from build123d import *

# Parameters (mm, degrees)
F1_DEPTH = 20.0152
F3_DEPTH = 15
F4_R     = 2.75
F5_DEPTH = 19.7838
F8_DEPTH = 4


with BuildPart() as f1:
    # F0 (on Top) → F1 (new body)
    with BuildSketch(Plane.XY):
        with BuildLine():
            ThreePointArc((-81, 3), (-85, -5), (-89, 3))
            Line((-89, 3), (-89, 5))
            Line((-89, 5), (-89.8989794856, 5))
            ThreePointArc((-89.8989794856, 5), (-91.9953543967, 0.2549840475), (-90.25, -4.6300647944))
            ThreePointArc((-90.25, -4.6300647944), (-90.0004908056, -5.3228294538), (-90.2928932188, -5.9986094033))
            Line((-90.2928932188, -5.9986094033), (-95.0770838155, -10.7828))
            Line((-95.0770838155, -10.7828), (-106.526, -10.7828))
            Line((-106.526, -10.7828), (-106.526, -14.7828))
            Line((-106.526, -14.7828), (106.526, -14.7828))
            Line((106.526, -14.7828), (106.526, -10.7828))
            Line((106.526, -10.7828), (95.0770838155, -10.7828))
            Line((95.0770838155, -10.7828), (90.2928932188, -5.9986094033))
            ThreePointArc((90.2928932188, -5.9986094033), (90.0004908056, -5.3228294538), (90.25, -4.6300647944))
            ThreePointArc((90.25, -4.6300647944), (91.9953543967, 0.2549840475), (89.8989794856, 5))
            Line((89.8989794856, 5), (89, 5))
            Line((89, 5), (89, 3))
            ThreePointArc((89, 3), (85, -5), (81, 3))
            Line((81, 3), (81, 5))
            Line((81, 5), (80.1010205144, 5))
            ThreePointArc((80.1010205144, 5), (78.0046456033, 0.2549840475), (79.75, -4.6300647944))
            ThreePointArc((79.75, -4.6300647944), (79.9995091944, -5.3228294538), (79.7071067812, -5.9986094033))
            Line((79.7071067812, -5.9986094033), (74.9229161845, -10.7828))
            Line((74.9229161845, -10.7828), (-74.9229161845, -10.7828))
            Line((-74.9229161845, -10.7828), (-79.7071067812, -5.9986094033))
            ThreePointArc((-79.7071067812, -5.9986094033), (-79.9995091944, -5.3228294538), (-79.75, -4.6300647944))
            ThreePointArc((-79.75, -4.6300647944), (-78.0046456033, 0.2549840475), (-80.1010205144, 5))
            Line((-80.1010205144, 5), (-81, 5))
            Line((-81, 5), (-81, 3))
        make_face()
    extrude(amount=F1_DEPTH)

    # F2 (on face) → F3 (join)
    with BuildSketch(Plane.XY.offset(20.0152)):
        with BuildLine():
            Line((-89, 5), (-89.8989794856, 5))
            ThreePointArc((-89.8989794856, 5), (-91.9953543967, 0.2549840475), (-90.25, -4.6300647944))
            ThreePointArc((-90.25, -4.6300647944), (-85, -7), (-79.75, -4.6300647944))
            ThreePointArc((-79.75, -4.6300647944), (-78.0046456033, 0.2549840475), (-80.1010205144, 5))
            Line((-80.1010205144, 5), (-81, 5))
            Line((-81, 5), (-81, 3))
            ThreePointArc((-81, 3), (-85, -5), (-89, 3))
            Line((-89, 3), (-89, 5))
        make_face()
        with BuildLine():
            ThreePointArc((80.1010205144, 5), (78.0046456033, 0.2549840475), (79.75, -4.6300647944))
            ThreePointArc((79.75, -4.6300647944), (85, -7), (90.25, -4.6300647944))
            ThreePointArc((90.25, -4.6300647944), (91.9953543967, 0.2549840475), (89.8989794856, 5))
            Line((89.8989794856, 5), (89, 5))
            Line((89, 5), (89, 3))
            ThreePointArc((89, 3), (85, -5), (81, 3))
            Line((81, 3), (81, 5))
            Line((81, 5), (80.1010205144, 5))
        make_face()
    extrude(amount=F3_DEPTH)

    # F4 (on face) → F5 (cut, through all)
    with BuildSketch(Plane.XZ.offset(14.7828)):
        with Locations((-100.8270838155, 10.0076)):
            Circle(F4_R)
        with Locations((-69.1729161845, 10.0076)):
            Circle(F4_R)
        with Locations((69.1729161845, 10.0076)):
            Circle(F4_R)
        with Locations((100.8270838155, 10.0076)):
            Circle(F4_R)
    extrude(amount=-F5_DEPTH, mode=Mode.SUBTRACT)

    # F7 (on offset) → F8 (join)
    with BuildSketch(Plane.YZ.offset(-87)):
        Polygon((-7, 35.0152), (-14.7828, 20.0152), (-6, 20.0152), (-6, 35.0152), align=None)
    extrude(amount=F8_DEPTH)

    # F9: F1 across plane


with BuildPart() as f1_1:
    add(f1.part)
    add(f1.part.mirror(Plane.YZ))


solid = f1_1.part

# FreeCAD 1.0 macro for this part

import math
import FreeCAD as App
import Part
import Sketcher

doc = App.newDocument("Part")
params = doc.addObject("Spreadsheet::Sheet", "Params")
for row, (alias, value) in enumerate([
    ("sketch1_radius", "5 mm"),
    ("sketch1_radius2", "7 mm"),
    ("sketch1_radius3", "1 mm"),
    ("sketch1_height", "2 mm"),
    ("sketch1_height2", "4 mm"),
    ("pad1_length", "20.0152 mm"),
    ("sketch2_radius", "7 mm"),
    ("sketch2_radius2", "5 mm"),
    ("sketch2_height", "2 mm"),
    ("pad2_length", "15 mm"),
    ("sketch3_diameter", "5.5 mm"),
    ("sketch4_width", "1 mm"),
    ("sketch4_height", "15 mm"),
    ("pad3_length", "4 mm"),
], start=1):
    params.set(f"A{row}", alias)
    params.set(f"B{row}", "=" + value)
    params.setAlias(f"B{row}", alias)

body = doc.addObject("PartDesign::Body", "Body")

# Sketch on XY plane
sketch1 = doc.addObject("Sketcher::SketchObject", "Sketch")
body.addObject(sketch1)
sketch1.AttachmentSupport = (doc.XY_Plane, [""])
sketch1.MapMode = "FlatFace"
sketch1.addGeometry(Part.ArcOfCircle(Part.Circle(App.Vector(-85, 0, 0), App.Vector(0, 0, 1), 5), math.radians(143), math.radians(397)), False)
sketch1.addGeometry(Part.LineSegment(App.Vector(-89, 3, 0), App.Vector(-89, 5, 0)), False)
sketch1.addGeometry(Part.LineSegment(App.Vector(-89, 5, 0), App.Vector(-89.9, 5, 0)), False)
sketch1.addGeometry(Part.ArcOfCircle(Part.Circle(App.Vector(-85, 0, 0), App.Vector(0, 0, 1), 7), math.radians(134), math.radians(221)), False)
sketch1.addGeometry(Part.ArcOfCircle(Part.Circle(App.Vector(-91, -5.3, 0), App.Vector(0, 0, 1), 1), math.radians(-45), math.radians(41)), False)
sketch1.addGeometry(Part.LineSegment(App.Vector(-90.3, -6, 0), App.Vector(-95.1, -10.8, 0)), False)
sketch1.addGeometry(Part.LineSegment(App.Vector(-95.1, -10.8, 0), App.Vector(-106.5, -10.8, 0)), False)
sketch1.addGeometry(Part.LineSegment(App.Vector(-106.5, -10.8, 0), App.Vector(-106.5, -14.8, 0)), False)
sketch1.addGeometry(Part.LineSegment(App.Vector(-106.5, -14.8, 0), App.Vector(106.5, -14.8, 0)), False)
sketch1.addGeometry(Part.LineSegment(App.Vector(106.5, -14.8, 0), App.Vector(106.5, -10.8, 0)), False)
sketch1.addGeometry(Part.LineSegment(App.Vector(106.5, -10.8, 0), App.Vector(95.1, -10.8, 0)), False)
sketch1.addGeometry(Part.LineSegment(App.Vector(95.1, -10.8, 0), App.Vector(90.3, -6, 0)), False)
sketch1.addGeometry(Part.ArcOfCircle(Part.Circle(App.Vector(91, -5.3, 0), App.Vector(0, 0, 1), 1), math.radians(139), math.radians(225)), False)
sketch1.addGeometry(Part.ArcOfCircle(Part.Circle(App.Vector(85, 0, 0), App.Vector(0, 0, 1), 7), math.radians(-41), math.radians(46)), False)
sketch1.addGeometry(Part.LineSegment(App.Vector(89.9, 5, 0), App.Vector(89, 5, 0)), False)
sketch1.addGeometry(Part.LineSegment(App.Vector(89, 5, 0), App.Vector(89, 3, 0)), False)
sketch1.addGeometry(Part.ArcOfCircle(Part.Circle(App.Vector(85, 0, 0), App.Vector(0, 0, 1), 5), math.radians(143), math.radians(397)), False)
sketch1.addGeometry(Part.LineSegment(App.Vector(81, 3, 0), App.Vector(81, 5, 0)), False)
sketch1.addGeometry(Part.LineSegment(App.Vector(81, 5, 0), App.Vector(80.1, 5, 0)), False)
sketch1.addGeometry(Part.ArcOfCircle(Part.Circle(App.Vector(85, 0, 0), App.Vector(0, 0, 1), 7), math.radians(134), math.radians(221)), False)
sketch1.addGeometry(Part.ArcOfCircle(Part.Circle(App.Vector(79, -5.3, 0), App.Vector(0, 0, 1), 1), math.radians(-45), math.radians(41)), False)
sketch1.addGeometry(Part.LineSegment(App.Vector(79.7, -6, 0), App.Vector(74.9, -10.8, 0)), False)
sketch1.addGeometry(Part.LineSegment(App.Vector(74.9, -10.8, 0), App.Vector(-74.9, -10.8, 0)), False)
sketch1.addGeometry(Part.LineSegment(App.Vector(-74.9, -10.8, 0), App.Vector(-79.7, -6, 0)), False)
sketch1.addGeometry(Part.ArcOfCircle(Part.Circle(App.Vector(-79, -5.3, 0), App.Vector(0, 0, 1), 1), math.radians(139), math.radians(225)), False)
sketch1.addGeometry(Part.ArcOfCircle(Part.Circle(App.Vector(-85, 0, 0), App.Vector(0, 0, 1), 7), math.radians(-41), math.radians(46)), False)
sketch1.addGeometry(Part.LineSegment(App.Vector(-80.1, 5, 0), App.Vector(-81, 5, 0)), False)
sketch1.addGeometry(Part.LineSegment(App.Vector(-81, 5, 0), App.Vector(-81, 3, 0)), False)
sketch1.addConstraint(Sketcher.Constraint("Coincident", 0, 1, 1, 1))
sketch1.addConstraint(Sketcher.Constraint("Coincident", 1, 2, 2, 1))
sketch1.addConstraint(Sketcher.Constraint("Coincident", 2, 2, 3, 1))
sketch1.addConstraint(Sketcher.Constraint("Tangent", 3, 2, 4, 2))
sketch1.addConstraint(Sketcher.Constraint("Tangent", 4, 1, 5, 1))
sketch1.addConstraint(Sketcher.Constraint("Coincident", 5, 2, 6, 1))
sketch1.addConstraint(Sketcher.Constraint("Coincident", 6, 2, 7, 1))
sketch1.addConstraint(Sketcher.Constraint("Coincident", 7, 2, 8, 1))
sketch1.addConstraint(Sketcher.Constraint("Coincident", 8, 2, 9, 1))
sketch1.addConstraint(Sketcher.Constraint("Coincident", 9, 2, 10, 1))
sketch1.addConstraint(Sketcher.Constraint("Coincident", 10, 2, 11, 1))
sketch1.addConstraint(Sketcher.Constraint("Tangent", 11, 2, 12, 2))
sketch1.addConstraint(Sketcher.Constraint("Tangent", 12, 1, 13, 1))
sketch1.addConstraint(Sketcher.Constraint("Coincident", 13, 2, 14, 1))
sketch1.addConstraint(Sketcher.Constraint("Coincident", 14, 2, 15, 1))
sketch1.addConstraint(Sketcher.Constraint("Coincident", 15, 2, 16, 2))
sketch1.addConstraint(Sketcher.Constraint("Coincident", 16, 1, 17, 1))
sketch1.addConstraint(Sketcher.Constraint("Coincident", 17, 2, 18, 1))
sketch1.addConstraint(Sketcher.Constraint("Coincident", 18, 2, 19, 1))
sketch1.addConstraint(Sketcher.Constraint("Tangent", 19, 2, 20, 2))
sketch1.addConstraint(Sketcher.Constraint("Tangent", 20, 1, 21, 1))
sketch1.addConstraint(Sketcher.Constraint("Coincident", 21, 2, 22, 1))
sketch1.addConstraint(Sketcher.Constraint("Coincident", 22, 2, 23, 1))
sketch1.addConstraint(Sketcher.Constraint("Tangent", 23, 2, 24, 2))
sketch1.addConstraint(Sketcher.Constraint("Tangent", 24, 1, 25, 1))
sketch1.addConstraint(Sketcher.Constraint("Coincident", 25, 2, 26, 1))
sketch1.addConstraint(Sketcher.Constraint("Coincident", 26, 2, 27, 1))
sketch1.addConstraint(Sketcher.Constraint("Coincident", 27, 2, 0, 2))
sketch1.addConstraint(Sketcher.Constraint("Vertical", 1))
sketch1.addConstraint(Sketcher.Constraint("Horizontal", 2))
sketch1.addConstraint(Sketcher.Constraint("Horizontal", 6))
sketch1.addConstraint(Sketcher.Constraint("Vertical", 7))
sketch1.addConstraint(Sketcher.Constraint("Horizontal", 8))
sketch1.addConstraint(Sketcher.Constraint("Vertical", 9))
sketch1.addConstraint(Sketcher.Constraint("Horizontal", 10))
sketch1.addConstraint(Sketcher.Constraint("Horizontal", 14))
sketch1.addConstraint(Sketcher.Constraint("Vertical", 15))
sketch1.addConstraint(Sketcher.Constraint("Vertical", 17))
sketch1.addConstraint(Sketcher.Constraint("Horizontal", 18))
sketch1.addConstraint(Sketcher.Constraint("Horizontal", 22))
sketch1.addConstraint(Sketcher.Constraint("Horizontal", 26))
sketch1.addConstraint(Sketcher.Constraint("Vertical", 27))
sketch1.addConstraint(Sketcher.Constraint("Coincident", 3, 3, 0, 3))
sketch1.addConstraint(Sketcher.Constraint("Coincident", 16, 3, 13, 3))
sketch1.addConstraint(Sketcher.Constraint("Coincident", 19, 3, 13, 3))
sketch1.addConstraint(Sketcher.Constraint("Coincident", 25, 3, 0, 3))
sketch1.addConstraint(Sketcher.Constraint("Equal", 4, 12))
sketch1.addConstraint(Sketcher.Constraint("Equal", 3, 13))
sketch1.addConstraint(Sketcher.Constraint("Equal", 0, 16))
sketch1.addConstraint(Sketcher.Constraint("Equal", 13, 19))
sketch1.addConstraint(Sketcher.Constraint("Equal", 12, 20))
sketch1.addConstraint(Sketcher.Constraint("Equal", 20, 24))
sketch1.addConstraint(Sketcher.Constraint("Equal", 19, 25))
sketch1.addConstraint(Sketcher.Constraint("Symmetric", 0, 3, 13, 3, -1, 1))
sketch1.addConstraint(Sketcher.Constraint("Symmetric", 4, 3, 12, 3, -2))
sketch1.addConstraint(Sketcher.Constraint("Symmetric", 6, 2, 9, 2, -2))
sketch1.addConstraint(Sketcher.Constraint("Symmetric", 1, 2, 14, 2, -2))
sketch1.addConstraint(Sketcher.Constraint("Symmetric", 20, 1, 23, 2, -2))
sketch1.addConstraint(Sketcher.Constraint("Symmetric", 17, 2, 26, 2, -2))
sketch1.addConstraint(Sketcher.Constraint("Perpendicular", 5, 11))
sketch1.addConstraint(Sketcher.Constraint("Perpendicular", 11, 21))
sketch1.addConstraint(Sketcher.Constraint("Perpendicular", 21, 23))
sketch1.addConstraint(Sketcher.Constraint("Horizontal", 12, 3, 20, 3))
sketch1.addConstraint(Sketcher.Constraint("Horizontal", 15, 2, 16, 1))
sketch1.addConstraint(Sketcher.Constraint("Horizontal", 14, 2, 17, 2))
sketch1.addConstraint(Sketcher.Constraint("Horizontal", 10, 2, 21, 2))
sketch1.addConstraint(Sketcher.Constraint("Radius", 0, 5.0))
sketch1.addConstraint(Sketcher.Constraint("Radius", 3, 7.0))
sketch1.addConstraint(Sketcher.Constraint("Radius", 4, 1.0))
sketch1.addConstraint(Sketcher.Constraint("DistanceY", 1, 1, 1, 2, 2.0))
sketch1.addConstraint(Sketcher.Constraint("DistanceY", 7, 2, 7, 1, 4.0))
sketch1.addConstraint(Sketcher.Constraint("DistanceX", 0, 3, -1, 1, 85.0))
sketch1.addConstraint(Sketcher.Constraint("DistanceX", 4, 3, -1, 1, 91.0))
sketch1.addConstraint(Sketcher.Constraint("DistanceX", 0, 1, -1, 1, 89.0))
sketch1.addConstraint(Sketcher.Constraint("DistanceX", 8, 1, 8, 2, 213.052))
sketch1.addConstraint(Sketcher.Constraint("DistanceY", 5, 2, -1, 1, 10.7828))
sketch1.setExpression("Constraints[66]", "Params.sketch1_radius")
sketch1.setExpression("Constraints[67]", "Params.sketch1_radius2")
sketch1.setExpression("Constraints[68]", "Params.sketch1_radius3")
sketch1.setExpression("Constraints[69]", "Params.sketch1_height")
sketch1.setExpression("Constraints[70]", "Params.sketch1_height2")
pad1 = doc.addObject("PartDesign::Pad", "Pad")
body.addObject(pad1)
pad1.Profile = sketch1
pad1.setExpression("Length", "Params.pad1_length")

# Sketch on XY plane
sketch2 = doc.addObject("Sketcher::SketchObject", "Sketch001")
body.addObject(sketch2)
sketch2.AttachmentSupport = (doc.XY_Plane, [""])
sketch2.MapMode = "FlatFace"
sketch2.AttachmentOffset = App.Placement(App.Vector(0, 0, 20.0152), App.Rotation())
sketch2.addGeometry(Part.LineSegment(App.Vector(-89, 5, 0), App.Vector(-89.9, 5, 0)), False)
sketch2.addGeometry(Part.ArcOfCircle(Part.Circle(App.Vector(-85, 0, 0), App.Vector(0, 0, 1), 7), math.radians(134), math.radians(221)), False)
sketch2.addGeometry(Part.ArcOfCircle(Part.Circle(App.Vector(-85, 0, 0), App.Vector(0, 0, 1), 7), math.radians(-139), math.radians(-41)), False)
sketch2.addGeometry(Part.ArcOfCircle(Part.Circle(App.Vector(-85, 0, 0), App.Vector(0, 0, 1), 7), math.radians(-41), math.radians(46)), False)
sketch2.addGeometry(Part.LineSegment(App.Vector(-80.1, 5, 0), App.Vector(-81, 5, 0)), False)
sketch2.addGeometry(Part.LineSegment(App.Vector(-81, 5, 0), App.Vector(-81, 3, 0)), False)
sketch2.addGeometry(Part.ArcOfCircle(Part.Circle(App.Vector(-85, 0, 0), App.Vector(0, 0, 1), 5), math.radians(143), math.radians(397)), False)
sketch2.addGeometry(Part.LineSegment(App.Vector(-89, 3, 0), App.Vector(-89, 5, 0)), False)
sketch2.addGeometry(Part.ArcOfCircle(Part.Circle(App.Vector(85, 0, 0), App.Vector(0, 0, 1), 7), math.radians(134), math.radians(221)), False)
sketch2.addGeometry(Part.ArcOfCircle(Part.Circle(App.Vector(85, 0, 0), App.Vector(0, 0, 1), 7), math.radians(-139), math.radians(-41)), False)
sketch2.addGeometry(Part.ArcOfCircle(Part.Circle(App.Vector(85, 0, 0), App.Vector(0, 0, 1), 7), math.radians(-41), math.radians(46)), False)
sketch2.addGeometry(Part.LineSegment(App.Vector(89.9, 5, 0), App.Vector(89, 5, 0)), False)
sketch2.addGeometry(Part.LineSegment(App.Vector(89, 5, 0), App.Vector(89, 3, 0)), False)
sketch2.addGeometry(Part.ArcOfCircle(Part.Circle(App.Vector(85, 0, 0), App.Vector(0, 0, 1), 5), math.radians(143), math.radians(397)), False)
sketch2.addGeometry(Part.LineSegment(App.Vector(81, 3, 0), App.Vector(81, 5, 0)), False)
sketch2.addGeometry(Part.LineSegment(App.Vector(81, 5, 0), App.Vector(80.1, 5, 0)), False)
sketch2.addConstraint(Sketcher.Constraint("Coincident", 0, 2, 1, 1))
sketch2.addConstraint(Sketcher.Constraint("Tangent", 1, 2, 2, 1))
sketch2.addConstraint(Sketcher.Constraint("Tangent", 2, 2, 3, 1))
sketch2.addConstraint(Sketcher.Constraint("Coincident", 3, 2, 4, 1))
sketch2.addConstraint(Sketcher.Constraint("Coincident", 4, 2, 5, 1))
sketch2.addConstraint(Sketcher.Constraint("Coincident", 5, 2, 6, 2))
sketch2.addConstraint(Sketcher.Constraint("Coincident", 6, 1, 7, 1))
sketch2.addConstraint(Sketcher.Constraint("Coincident", 7, 2, 0, 1))
sketch2.addConstraint(Sketcher.Constraint("Tangent", 8, 2, 9, 1))
sketch2.addConstraint(Sketcher.Constraint("Tangent", 9, 2, 10, 1))
sketch2.addConstraint(Sketcher.Constraint("Coincident", 10, 2, 11, 1))
sketch2.addConstraint(Sketcher.Constraint("Coincident", 11, 2, 12, 1))
sketch2.addConstraint(Sketcher.Constraint("Coincident", 12, 2, 13, 2))
sketch2.addConstraint(Sketcher.Constraint("Coincident", 13, 1, 14, 1))
sketch2.addConstraint(Sketcher.Constraint("Coincident", 14, 2, 15, 1))
sketch2.addConstraint(Sketcher.Constraint("Coincident", 15, 2, 8, 1))
sketch2.addConstraint(Sketcher.Constraint("Horizontal", 0))
sketch2.addConstraint(Sketcher.Constraint("Horizontal", 4))
sketch2.addConstraint(Sketcher.Constraint("Vertical", 5))
sketch2.addConstraint(Sketcher.Constraint("Vertical", 7))
sketch2.addConstraint(Sketcher.Constraint("Horizontal", 11))
sketch2.addConstraint(Sketcher.Constraint("Vertical", 12))
sketch2.addConstraint(Sketcher.Constraint("Vertical", 14))
sketch2.addConstraint(Sketcher.Constraint("Horizontal", 15))
sketch2.addConstraint(Sketcher.Constraint("Coincident", 3, 3, 1, 3))
sketch2.addConstraint(Sketcher.Constraint("Coincident", 6, 3, 1, 3))
sketch2.addConstraint(Sketcher.Constraint("Coincident", 10, 3, 8, 3))
sketch2.addConstraint(Sketcher.Constraint("Coincident", 13, 3, 8, 3))
sketch2.addConstraint(Sketcher.Constraint("Equal", 3, 8))
sketch2.addConstraint(Sketcher.Constraint("Equal", 6, 13))
sketch2.addConstraint(Sketcher.Constraint("Symmetric", 1, 3, 8, 3, -1, 1))
sketch2.addConstraint(Sketcher.Constraint("Symmetric", 2, 2, 8, 2, -2))
sketch2.addConstraint(Sketcher.Constraint("Symmetric", 7, 2, 11, 2, -2))
sketch2.addConstraint(Sketcher.Constraint("Symmetric", 4, 2, 14, 2, -2))
sketch2.addConstraint(Sketcher.Constraint("Horizontal", 1, 2, 2, 2))
sketch2.addConstraint(Sketcher.Constraint("Horizontal", 0, 2, 3, 2))
sketch2.addConstraint(Sketcher.Constraint("Horizontal", 5, 2, 6, 1))
sketch2.addConstraint(Sketcher.Constraint("Horizontal", 8, 2, 9, 2))
sketch2.addConstraint(Sketcher.Constraint("Radius", 1, 7.0))
sketch2.addConstraint(Sketcher.Constraint("Radius", 6, 5.0))
sketch2.addConstraint(Sketcher.Constraint("DistanceY", 5, 2, 5, 1, 2.0))
sketch2.addConstraint(Sketcher.Constraint("DistanceX", 1, 3, -1, 1, 85.0))
sketch2.addConstraint(Sketcher.Constraint("DistanceY", -1, 1, 0, 2, 5.0))
sketch2.addConstraint(Sketcher.Constraint("DistanceX", 1, 2, 2, 2, 10.5))
sketch2.setExpression("Constraints[38]", "Params.sketch2_radius")
sketch2.setExpression("Constraints[39]", "Params.sketch2_radius2")
sketch2.setExpression("Constraints[40]", "Params.sketch2_height")
pad2 = doc.addObject("PartDesign::Pad", "Pad001")
body.addObject(pad2)
pad2.Profile = sketch2
pad2.setExpression("Length", "Params.pad2_length")

# Sketch on XZ plane
sketch3 = doc.addObject("Sketcher::SketchObject", "Sketch002")
body.addObject(sketch3)
sketch3.AttachmentSupport = (doc.XZ_Plane, [""])
sketch3.MapMode = "FlatFace"
sketch3.AttachmentOffset = App.Placement(App.Vector(0, 0, 14.7828), App.Rotation())
sketch3.addGeometry(Part.Circle(App.Vector(-100.8, 10, 0), App.Vector(0, 0, 1), 2.8), False)
sketch3.addGeometry(Part.Circle(App.Vector(-69.2, 10, 0), App.Vector(0, 0, 1), 2.8), False)
sketch3.addGeometry(Part.Circle(App.Vector(69.2, 10, 0), App.Vector(0, 0, 1), 2.8), False)
sketch3.addGeometry(Part.Circle(App.Vector(100.8, 10, 0), App.Vector(0, 0, 1), 2.8), False)
sketch3.addConstraint(Sketcher.Constraint("Equal", 0, 1))
sketch3.addConstraint(Sketcher.Constraint("Equal", 1, 2))
sketch3.addConstraint(Sketcher.Constraint("Equal", 2, 3))
sketch3.addConstraint(Sketcher.Constraint("Symmetric", 1, 3, 2, 3, -2))
sketch3.addConstraint(Sketcher.Constraint("Symmetric", 0, 3, 3, 3, -2))
sketch3.addConstraint(Sketcher.Constraint("Horizontal", 0, 3, 1, 3))
sketch3.addConstraint(Sketcher.Constraint("Diameter", 0, 5.5))
sketch3.addConstraint(Sketcher.Constraint("DistanceX", 0, 3, 2, 3, 170.0))
sketch3.addConstraint(Sketcher.Constraint("DistanceY", -1, 1, 0, 3, 10.0076))
sketch3.addConstraint(Sketcher.Constraint("DistanceX", 0, 3, -1, 1, 100.827084))
sketch3.setExpression("Constraints[6]", "Params.sketch3_diameter")
pocket1 = doc.addObject("PartDesign::Pocket", "Pocket")
body.addObject(pocket1)
pocket1.Profile = sketch3
pocket1.Type = "ThroughAll"

# Sketch on YZ plane
sketch4 = doc.addObject("Sketcher::SketchObject", "Sketch003")
body.addObject(sketch4)
sketch4.AttachmentSupport = (doc.YZ_Plane, [""])
sketch4.MapMode = "FlatFace"
sketch4.AttachmentOffset = App.Placement(App.Vector(0, 0, -87), App.Rotation())
sketch4.addGeometry(Part.LineSegment(App.Vector(-7, 35, 0), App.Vector(-14.8, 20, 0)), False)
sketch4.addGeometry(Part.LineSegment(App.Vector(-14.8, 20, 0), App.Vector(-6, 20, 0)), False)
sketch4.addGeometry(Part.LineSegment(App.Vector(-6, 20, 0), App.Vector(-6, 35, 0)), False)
sketch4.addGeometry(Part.LineSegment(App.Vector(-6, 35, 0), App.Vector(-7, 35, 0)), False)
sketch4.addConstraint(Sketcher.Constraint("Coincident", 0, 2, 1, 1))
sketch4.addConstraint(Sketcher.Constraint("Coincident", 1, 2, 2, 1))
sketch4.addConstraint(Sketcher.Constraint("Coincident", 2, 2, 3, 1))
sketch4.addConstraint(Sketcher.Constraint("Coincident", 3, 2, 0, 1))
sketch4.addConstraint(Sketcher.Constraint("Horizontal", 1))
sketch4.addConstraint(Sketcher.Constraint("Vertical", 2))
sketch4.addConstraint(Sketcher.Constraint("Horizontal", 3))
sketch4.addConstraint(Sketcher.Constraint("DistanceX", 3, 2, 3, 1, 1.0))
sketch4.addConstraint(Sketcher.Constraint("DistanceY", 2, 1, 2, 2, 15.0))
sketch4.addConstraint(Sketcher.Constraint("DistanceX", 1, 2, -1, 1, 6.0))
sketch4.addConstraint(Sketcher.Constraint("DistanceX", 1, 1, 1, 2, 8.7828))
sketch4.addConstraint(Sketcher.Constraint("DistanceY", -1, 1, 0, 2, 20.0152))
sketch4.setExpression("Constraints[7]", "Params.sketch4_width")
sketch4.setExpression("Constraints[8]", "Params.sketch4_height")
pad3 = doc.addObject("PartDesign::Pad", "Pad002")
body.addObject(pad3)
pad3.Profile = sketch4
pad3.setExpression("Length", "Params.pad3_length")
body2 = doc.addObject("PartDesign::Body", "Body001")
doc.recompute()

body2.BaseFeature = body
doc.recompute()

mirroring = doc.addObject("Part::Mirroring", "Mirroring")
mirroring.Source = body
mirroring.Base = App.Vector(0, 0, 0)
mirroring.Normal = App.Vector(1, 0, 0)
body3 = doc.addObject("PartDesign::Body", "Body002")
body3.BaseFeature = mirroring
boolean = doc.addObject("PartDesign::Boolean", "Boolean")
body2.addObject(boolean)
boolean.Type = "Fuse"
boolean.addObjects([body3])
doc.recompute()
mirroring.Visibility = False

doc.recompute()
